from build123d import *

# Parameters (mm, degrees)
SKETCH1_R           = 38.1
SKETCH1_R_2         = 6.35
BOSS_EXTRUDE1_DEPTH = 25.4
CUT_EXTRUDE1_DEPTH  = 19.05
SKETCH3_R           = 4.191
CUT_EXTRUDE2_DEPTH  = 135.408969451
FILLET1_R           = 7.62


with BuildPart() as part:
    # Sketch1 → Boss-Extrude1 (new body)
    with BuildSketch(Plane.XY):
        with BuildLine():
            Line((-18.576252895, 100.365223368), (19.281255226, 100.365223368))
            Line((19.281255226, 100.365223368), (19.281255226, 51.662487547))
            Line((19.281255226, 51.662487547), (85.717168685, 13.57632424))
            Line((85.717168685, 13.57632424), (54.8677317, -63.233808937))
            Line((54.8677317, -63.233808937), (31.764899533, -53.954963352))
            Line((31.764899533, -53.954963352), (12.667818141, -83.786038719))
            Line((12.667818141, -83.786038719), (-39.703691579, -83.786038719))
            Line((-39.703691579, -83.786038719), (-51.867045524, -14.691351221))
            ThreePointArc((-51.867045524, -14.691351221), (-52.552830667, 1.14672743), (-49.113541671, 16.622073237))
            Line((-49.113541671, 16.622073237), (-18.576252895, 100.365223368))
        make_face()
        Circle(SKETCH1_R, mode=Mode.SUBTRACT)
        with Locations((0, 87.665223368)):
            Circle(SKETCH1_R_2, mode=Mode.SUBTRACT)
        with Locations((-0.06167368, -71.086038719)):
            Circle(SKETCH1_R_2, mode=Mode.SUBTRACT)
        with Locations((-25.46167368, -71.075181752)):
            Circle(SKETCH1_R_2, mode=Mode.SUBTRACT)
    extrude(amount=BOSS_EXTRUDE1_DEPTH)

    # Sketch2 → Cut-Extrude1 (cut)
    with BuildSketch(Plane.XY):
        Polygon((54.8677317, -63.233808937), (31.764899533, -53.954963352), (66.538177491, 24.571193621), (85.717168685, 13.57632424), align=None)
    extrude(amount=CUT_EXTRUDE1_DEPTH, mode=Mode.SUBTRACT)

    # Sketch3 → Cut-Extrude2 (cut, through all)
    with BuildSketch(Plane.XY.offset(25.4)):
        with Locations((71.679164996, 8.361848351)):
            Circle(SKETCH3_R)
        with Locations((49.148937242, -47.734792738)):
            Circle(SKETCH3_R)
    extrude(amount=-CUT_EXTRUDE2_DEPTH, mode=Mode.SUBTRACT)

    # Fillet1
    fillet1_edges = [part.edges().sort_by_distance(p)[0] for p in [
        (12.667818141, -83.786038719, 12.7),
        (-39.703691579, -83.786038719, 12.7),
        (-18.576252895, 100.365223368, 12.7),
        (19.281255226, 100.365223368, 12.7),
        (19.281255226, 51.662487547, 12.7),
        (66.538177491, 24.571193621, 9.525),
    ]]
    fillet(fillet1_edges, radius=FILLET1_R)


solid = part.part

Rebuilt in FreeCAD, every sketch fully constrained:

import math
import FreeCAD as App
import Part
import Sketcher

V = App.Vector
Q = App.Units.Quantity


def edges_at(feature, points):
    """Names of the edges that pass closest to the given points."""
    edges = feature.Shape.Edges
    near = lambda p: min(range(len(edges)), key=lambda i: edges[i].distToShape(Part.Vertex(*p))[0])
    return sorted({f"Edge{near(p) + 1}" for p in points})

doc = App.newDocument("Part")
body = doc.addObject("PartDesign::Body", "Body")

sketch1 = body.newObject("Sketcher::SketchObject", "Sketch")
sketch1.AttachmentSupport = (doc.getObject("XY_Plane"), [""])
sketch1.MapMode = "FlatFace"
sketch1.addGeometry([
    Part.LineSegment(V(19, 100, 0), V(-19, 100, 0)),
    Part.LineSegment(V(-19, 100, 0), V(-49, 17, 0)),
    Part.ArcOfCircle(Part.Circle(V(8, -4, 0), V(0, 0, 1), 61), math.radians(160), math.radians(190)),
    Part.LineSegment(V(-52, -15, 0), V(-40, -84, 0)),
    Part.LineSegment(V(-40, -84, 0), V(13, -84, 0)),
    Part.LineSegment(V(13, -84, 0), V(32, -54, 0)),
    Part.LineSegment(V(32, -54, 0), V(55, -63, 0)),
    Part.LineSegment(V(55, -63, 0), V(86, 14, 0)),
    Part.LineSegment(V(86, 14, 0), V(19, 52, 0)),
    Part.LineSegment(V(19, 52, 0), V(19, 100, 0)),
    Part.Circle(V(0, -71, 0), V(0, 0, 1), 6),
    Part.Circle(V(-25, -71, 0), V(0, 0, 1), 6),
    Part.Circle(V(0, 0, 0), V(0, 0, 1), 38),
    Part.Circle(V(0, 88, 0), V(0, 0, 1), 6),
], False)
sketch1.addConstraint([
    Sketcher.Constraint("Coincident", 0, 2, 1, 1),
    Sketcher.Constraint("Tangent", 1, 2, 2, 1),
    Sketcher.Constraint("Tangent", 2, 2, 3, 1),
    Sketcher.Constraint("Coincident", 3, 2, 4, 1),
    Sketcher.Constraint("Coincident", 4, 2, 5, 1),
    Sketcher.Constraint("Coincident", 5, 2, 6, 1),
    Sketcher.Constraint("Coincident", 6, 2, 7, 1),
    Sketcher.Constraint("Coincident", 7, 2, 8, 1),
    Sketcher.Constraint("Coincident", 8, 2, 9, 1),
    Sketcher.Constraint("Coincident", 9, 2, 0, 1),
    Sketcher.Constraint("Horizontal", 0),
    Sketcher.Constraint("Horizontal", 4),
    Sketcher.Constraint("Vertical", 9),
    Sketcher.Constraint("Coincident", 12, 3, -1, 1),
    Sketcher.Constraint("Equal", 10, 11),
    Sketcher.Constraint("Equal", 11, 13),
    Sketcher.Constraint("PointOnObject", 13, 3, -2),
    Sketcher.Constraint("Perpendicular", 6, 7),
    Sketcher.Constraint("Diameter", 12, Q("3 in")),
    Sketcher.Constraint("Diameter", 10, Q("0.5 in")),
    Sketcher.Constraint("DistanceX", 11, 3, 10, 3, Q("1 in")),
    Sketcher.Constraint("DistanceY", 13, 3, 0, 2, Q("0.5 in")),
    Sketcher.Constraint("DistanceY", 3, 2, 10, 3, Q("0.5 in")),
    Sketcher.Constraint("Radius", 2, Q("60.689578 mm")),
    Sketcher.Constraint("DistanceX", 0, 2, 0, 1, Q("37.857508 mm")),
    Sketcher.Constraint("DistanceX", 4, 1, 4, 2, Q("52.37151 mm")),
    Sketcher.Constraint("DistanceX", -1, 1, 5, 2, Q("31.7649 mm")),
    Sketcher.Constraint("DistanceY", 7, 2, 13, 3, Q("74.088899 mm")),
    Sketcher.Constraint("Distance", 3, Q("70.157131 mm")),
    Sketcher.Constraint("Distance", 8, Q("76.578629 mm")),
    Sketcher.Constraint("DistanceY", 9, 1, 9, 2, Q("48.702736 mm")),
    Sketcher.Constraint("DistanceY", 10, 3, -1, 1, Q("71.086039 mm")),
    Sketcher.Constraint("DistanceY", 11, 3, -1, 1, Q("71.075182 mm")),
    Sketcher.Constraint("DistanceX", 1, 2, -1, 1, Q("49.113542 mm")),
    Sketcher.Constraint("DistanceX", 3, 2, -1, 1, Q("39.703692 mm")),
    Sketcher.Constraint("DistanceX", -1, 1, 6, 2, Q("54.867732 mm")),
    Sketcher.Constraint("DistanceY", 6, 2, -1, 1, Q("63.233809 mm")),
    Sketcher.Constraint("DistanceX", -1, 1, 7, 2, Q("85.717169 mm")),
    Sketcher.Constraint("DistanceY", 2, 3, 13, 3, Q("91.834639 mm")),
    Sketcher.Constraint("DistanceX", 11, 3, 0, 2, Q("6.885421 mm")),
])
pad1 = body.newObject("PartDesign::Pad", "Pad")
pad1.Profile = sketch1
pad1.Length = Q("1 in")

sketch2 = body.newObject("Sketcher::SketchObject", "Sketch001")
sketch2.AttachmentSupport = (doc.getObject("XY_Plane"), [""])
sketch2.MapMode = "FlatFace"
sketch2.addGeometry([
    Part.LineSegment(V(32, -54, 0), V(55, -63, 0)),
    Part.LineSegment(V(55, -63, 0), V(86, 14, 0)),
    Part.LineSegment(V(86, 14, 0), V(67, 25, 0)),
    Part.LineSegment(V(67, 25, 0), V(32, -54, 0)),
], False)
sketch2.addConstraint([
    Sketcher.Constraint("Coincident", 0, 2, 1, 1),
    Sketcher.Constraint("Coincident", 1, 2, 2, 1),
    Sketcher.Constraint("Coincident", 2, 2, 3, 1),
    Sketcher.Constraint("Coincident", 3, 2, 0, 1),
    Sketcher.Constraint("Perpendicular", 0, 1),
    Sketcher.Constraint("DistanceX", -1, 1, 3, 2, Q("31.7649 mm")),
    Sketcher.Constraint("Distance", 2, Q("22.107032 mm")),
    Sketcher.Constraint("DistanceX", -1, 1, 0, 2, Q("54.867732 mm")),
    Sketcher.Constraint("DistanceY", 0, 2, -1, 1, Q("63.233809 mm")),
    Sketcher.Constraint("DistanceX", -1, 1, 1, 2, Q("85.717169 mm")),
    Sketcher.Constraint("DistanceX", 2, 2, 1, 2, Q("19.178991 mm")),
    Sketcher.Constraint("Distance", 0, Q("24.896543 mm")),
])
pocket1 = body.newObject("PartDesign::Pocket", "Pocket")
pocket1.Profile = sketch2
pocket1.Length = Q("0.75 in")
pocket1.Reversed = True

sketch3 = body.newObject("Sketcher::SketchObject", "Sketch002")
sketch3.AttachmentSupport = (doc.getObject("XY_Plane"), [""])
sketch3.MapMode = "FlatFace"
sketch3.AttachmentOffset = App.Placement(V(0, 0, 1 * 25.4), App.Rotation())
sketch3.addGeometry([
    Part.Circle(V(71.7, 8.4, 0), V(0, 0, 1), 4.2),
    Part.Circle(V(49.1, -47.7, 0), V(0, 0, 1), 4.2),
], False)
sketch3.addConstraint([
    Sketcher.Constraint("Equal", 0, 1),
    Sketcher.Constraint("Diameter", 0, Q("0.33 in")),
    Sketcher.Constraint("DistanceY", -1, 1, 0, 3, Q("8.361848 mm")),
    Sketcher.Constraint("DistanceY", 1, 3, 0, 3, Q("56.096641 mm")),
    Sketcher.Constraint("DistanceX", -1, 1, 0, 3, Q("71.679165 mm")),
    Sketcher.Constraint("DistanceX", -1, 1, 1, 3, Q("49.148937 mm")),
])
pocket2 = body.newObject("PartDesign::Pocket", "Pocket001")
pocket2.Profile = sketch3
pocket2.Type = "ThroughAll"
doc.recompute()

fillet = body.newObject("PartDesign::Fillet", "Fillet")
fillet.Base = (pocket2, edges_at(pocket2, [
    (12.668, -83.786, 12.7),
    (-39.704, -83.786, 12.7),
    (-18.576, 100.365, 12.7),
    (19.281, 100.365, 12.7),
    (19.281, 51.662, 12.7),
    (66.538, 24.571, 9.525),
]))
fillet.Radius = Q("0.3 in")

doc.recompute()
